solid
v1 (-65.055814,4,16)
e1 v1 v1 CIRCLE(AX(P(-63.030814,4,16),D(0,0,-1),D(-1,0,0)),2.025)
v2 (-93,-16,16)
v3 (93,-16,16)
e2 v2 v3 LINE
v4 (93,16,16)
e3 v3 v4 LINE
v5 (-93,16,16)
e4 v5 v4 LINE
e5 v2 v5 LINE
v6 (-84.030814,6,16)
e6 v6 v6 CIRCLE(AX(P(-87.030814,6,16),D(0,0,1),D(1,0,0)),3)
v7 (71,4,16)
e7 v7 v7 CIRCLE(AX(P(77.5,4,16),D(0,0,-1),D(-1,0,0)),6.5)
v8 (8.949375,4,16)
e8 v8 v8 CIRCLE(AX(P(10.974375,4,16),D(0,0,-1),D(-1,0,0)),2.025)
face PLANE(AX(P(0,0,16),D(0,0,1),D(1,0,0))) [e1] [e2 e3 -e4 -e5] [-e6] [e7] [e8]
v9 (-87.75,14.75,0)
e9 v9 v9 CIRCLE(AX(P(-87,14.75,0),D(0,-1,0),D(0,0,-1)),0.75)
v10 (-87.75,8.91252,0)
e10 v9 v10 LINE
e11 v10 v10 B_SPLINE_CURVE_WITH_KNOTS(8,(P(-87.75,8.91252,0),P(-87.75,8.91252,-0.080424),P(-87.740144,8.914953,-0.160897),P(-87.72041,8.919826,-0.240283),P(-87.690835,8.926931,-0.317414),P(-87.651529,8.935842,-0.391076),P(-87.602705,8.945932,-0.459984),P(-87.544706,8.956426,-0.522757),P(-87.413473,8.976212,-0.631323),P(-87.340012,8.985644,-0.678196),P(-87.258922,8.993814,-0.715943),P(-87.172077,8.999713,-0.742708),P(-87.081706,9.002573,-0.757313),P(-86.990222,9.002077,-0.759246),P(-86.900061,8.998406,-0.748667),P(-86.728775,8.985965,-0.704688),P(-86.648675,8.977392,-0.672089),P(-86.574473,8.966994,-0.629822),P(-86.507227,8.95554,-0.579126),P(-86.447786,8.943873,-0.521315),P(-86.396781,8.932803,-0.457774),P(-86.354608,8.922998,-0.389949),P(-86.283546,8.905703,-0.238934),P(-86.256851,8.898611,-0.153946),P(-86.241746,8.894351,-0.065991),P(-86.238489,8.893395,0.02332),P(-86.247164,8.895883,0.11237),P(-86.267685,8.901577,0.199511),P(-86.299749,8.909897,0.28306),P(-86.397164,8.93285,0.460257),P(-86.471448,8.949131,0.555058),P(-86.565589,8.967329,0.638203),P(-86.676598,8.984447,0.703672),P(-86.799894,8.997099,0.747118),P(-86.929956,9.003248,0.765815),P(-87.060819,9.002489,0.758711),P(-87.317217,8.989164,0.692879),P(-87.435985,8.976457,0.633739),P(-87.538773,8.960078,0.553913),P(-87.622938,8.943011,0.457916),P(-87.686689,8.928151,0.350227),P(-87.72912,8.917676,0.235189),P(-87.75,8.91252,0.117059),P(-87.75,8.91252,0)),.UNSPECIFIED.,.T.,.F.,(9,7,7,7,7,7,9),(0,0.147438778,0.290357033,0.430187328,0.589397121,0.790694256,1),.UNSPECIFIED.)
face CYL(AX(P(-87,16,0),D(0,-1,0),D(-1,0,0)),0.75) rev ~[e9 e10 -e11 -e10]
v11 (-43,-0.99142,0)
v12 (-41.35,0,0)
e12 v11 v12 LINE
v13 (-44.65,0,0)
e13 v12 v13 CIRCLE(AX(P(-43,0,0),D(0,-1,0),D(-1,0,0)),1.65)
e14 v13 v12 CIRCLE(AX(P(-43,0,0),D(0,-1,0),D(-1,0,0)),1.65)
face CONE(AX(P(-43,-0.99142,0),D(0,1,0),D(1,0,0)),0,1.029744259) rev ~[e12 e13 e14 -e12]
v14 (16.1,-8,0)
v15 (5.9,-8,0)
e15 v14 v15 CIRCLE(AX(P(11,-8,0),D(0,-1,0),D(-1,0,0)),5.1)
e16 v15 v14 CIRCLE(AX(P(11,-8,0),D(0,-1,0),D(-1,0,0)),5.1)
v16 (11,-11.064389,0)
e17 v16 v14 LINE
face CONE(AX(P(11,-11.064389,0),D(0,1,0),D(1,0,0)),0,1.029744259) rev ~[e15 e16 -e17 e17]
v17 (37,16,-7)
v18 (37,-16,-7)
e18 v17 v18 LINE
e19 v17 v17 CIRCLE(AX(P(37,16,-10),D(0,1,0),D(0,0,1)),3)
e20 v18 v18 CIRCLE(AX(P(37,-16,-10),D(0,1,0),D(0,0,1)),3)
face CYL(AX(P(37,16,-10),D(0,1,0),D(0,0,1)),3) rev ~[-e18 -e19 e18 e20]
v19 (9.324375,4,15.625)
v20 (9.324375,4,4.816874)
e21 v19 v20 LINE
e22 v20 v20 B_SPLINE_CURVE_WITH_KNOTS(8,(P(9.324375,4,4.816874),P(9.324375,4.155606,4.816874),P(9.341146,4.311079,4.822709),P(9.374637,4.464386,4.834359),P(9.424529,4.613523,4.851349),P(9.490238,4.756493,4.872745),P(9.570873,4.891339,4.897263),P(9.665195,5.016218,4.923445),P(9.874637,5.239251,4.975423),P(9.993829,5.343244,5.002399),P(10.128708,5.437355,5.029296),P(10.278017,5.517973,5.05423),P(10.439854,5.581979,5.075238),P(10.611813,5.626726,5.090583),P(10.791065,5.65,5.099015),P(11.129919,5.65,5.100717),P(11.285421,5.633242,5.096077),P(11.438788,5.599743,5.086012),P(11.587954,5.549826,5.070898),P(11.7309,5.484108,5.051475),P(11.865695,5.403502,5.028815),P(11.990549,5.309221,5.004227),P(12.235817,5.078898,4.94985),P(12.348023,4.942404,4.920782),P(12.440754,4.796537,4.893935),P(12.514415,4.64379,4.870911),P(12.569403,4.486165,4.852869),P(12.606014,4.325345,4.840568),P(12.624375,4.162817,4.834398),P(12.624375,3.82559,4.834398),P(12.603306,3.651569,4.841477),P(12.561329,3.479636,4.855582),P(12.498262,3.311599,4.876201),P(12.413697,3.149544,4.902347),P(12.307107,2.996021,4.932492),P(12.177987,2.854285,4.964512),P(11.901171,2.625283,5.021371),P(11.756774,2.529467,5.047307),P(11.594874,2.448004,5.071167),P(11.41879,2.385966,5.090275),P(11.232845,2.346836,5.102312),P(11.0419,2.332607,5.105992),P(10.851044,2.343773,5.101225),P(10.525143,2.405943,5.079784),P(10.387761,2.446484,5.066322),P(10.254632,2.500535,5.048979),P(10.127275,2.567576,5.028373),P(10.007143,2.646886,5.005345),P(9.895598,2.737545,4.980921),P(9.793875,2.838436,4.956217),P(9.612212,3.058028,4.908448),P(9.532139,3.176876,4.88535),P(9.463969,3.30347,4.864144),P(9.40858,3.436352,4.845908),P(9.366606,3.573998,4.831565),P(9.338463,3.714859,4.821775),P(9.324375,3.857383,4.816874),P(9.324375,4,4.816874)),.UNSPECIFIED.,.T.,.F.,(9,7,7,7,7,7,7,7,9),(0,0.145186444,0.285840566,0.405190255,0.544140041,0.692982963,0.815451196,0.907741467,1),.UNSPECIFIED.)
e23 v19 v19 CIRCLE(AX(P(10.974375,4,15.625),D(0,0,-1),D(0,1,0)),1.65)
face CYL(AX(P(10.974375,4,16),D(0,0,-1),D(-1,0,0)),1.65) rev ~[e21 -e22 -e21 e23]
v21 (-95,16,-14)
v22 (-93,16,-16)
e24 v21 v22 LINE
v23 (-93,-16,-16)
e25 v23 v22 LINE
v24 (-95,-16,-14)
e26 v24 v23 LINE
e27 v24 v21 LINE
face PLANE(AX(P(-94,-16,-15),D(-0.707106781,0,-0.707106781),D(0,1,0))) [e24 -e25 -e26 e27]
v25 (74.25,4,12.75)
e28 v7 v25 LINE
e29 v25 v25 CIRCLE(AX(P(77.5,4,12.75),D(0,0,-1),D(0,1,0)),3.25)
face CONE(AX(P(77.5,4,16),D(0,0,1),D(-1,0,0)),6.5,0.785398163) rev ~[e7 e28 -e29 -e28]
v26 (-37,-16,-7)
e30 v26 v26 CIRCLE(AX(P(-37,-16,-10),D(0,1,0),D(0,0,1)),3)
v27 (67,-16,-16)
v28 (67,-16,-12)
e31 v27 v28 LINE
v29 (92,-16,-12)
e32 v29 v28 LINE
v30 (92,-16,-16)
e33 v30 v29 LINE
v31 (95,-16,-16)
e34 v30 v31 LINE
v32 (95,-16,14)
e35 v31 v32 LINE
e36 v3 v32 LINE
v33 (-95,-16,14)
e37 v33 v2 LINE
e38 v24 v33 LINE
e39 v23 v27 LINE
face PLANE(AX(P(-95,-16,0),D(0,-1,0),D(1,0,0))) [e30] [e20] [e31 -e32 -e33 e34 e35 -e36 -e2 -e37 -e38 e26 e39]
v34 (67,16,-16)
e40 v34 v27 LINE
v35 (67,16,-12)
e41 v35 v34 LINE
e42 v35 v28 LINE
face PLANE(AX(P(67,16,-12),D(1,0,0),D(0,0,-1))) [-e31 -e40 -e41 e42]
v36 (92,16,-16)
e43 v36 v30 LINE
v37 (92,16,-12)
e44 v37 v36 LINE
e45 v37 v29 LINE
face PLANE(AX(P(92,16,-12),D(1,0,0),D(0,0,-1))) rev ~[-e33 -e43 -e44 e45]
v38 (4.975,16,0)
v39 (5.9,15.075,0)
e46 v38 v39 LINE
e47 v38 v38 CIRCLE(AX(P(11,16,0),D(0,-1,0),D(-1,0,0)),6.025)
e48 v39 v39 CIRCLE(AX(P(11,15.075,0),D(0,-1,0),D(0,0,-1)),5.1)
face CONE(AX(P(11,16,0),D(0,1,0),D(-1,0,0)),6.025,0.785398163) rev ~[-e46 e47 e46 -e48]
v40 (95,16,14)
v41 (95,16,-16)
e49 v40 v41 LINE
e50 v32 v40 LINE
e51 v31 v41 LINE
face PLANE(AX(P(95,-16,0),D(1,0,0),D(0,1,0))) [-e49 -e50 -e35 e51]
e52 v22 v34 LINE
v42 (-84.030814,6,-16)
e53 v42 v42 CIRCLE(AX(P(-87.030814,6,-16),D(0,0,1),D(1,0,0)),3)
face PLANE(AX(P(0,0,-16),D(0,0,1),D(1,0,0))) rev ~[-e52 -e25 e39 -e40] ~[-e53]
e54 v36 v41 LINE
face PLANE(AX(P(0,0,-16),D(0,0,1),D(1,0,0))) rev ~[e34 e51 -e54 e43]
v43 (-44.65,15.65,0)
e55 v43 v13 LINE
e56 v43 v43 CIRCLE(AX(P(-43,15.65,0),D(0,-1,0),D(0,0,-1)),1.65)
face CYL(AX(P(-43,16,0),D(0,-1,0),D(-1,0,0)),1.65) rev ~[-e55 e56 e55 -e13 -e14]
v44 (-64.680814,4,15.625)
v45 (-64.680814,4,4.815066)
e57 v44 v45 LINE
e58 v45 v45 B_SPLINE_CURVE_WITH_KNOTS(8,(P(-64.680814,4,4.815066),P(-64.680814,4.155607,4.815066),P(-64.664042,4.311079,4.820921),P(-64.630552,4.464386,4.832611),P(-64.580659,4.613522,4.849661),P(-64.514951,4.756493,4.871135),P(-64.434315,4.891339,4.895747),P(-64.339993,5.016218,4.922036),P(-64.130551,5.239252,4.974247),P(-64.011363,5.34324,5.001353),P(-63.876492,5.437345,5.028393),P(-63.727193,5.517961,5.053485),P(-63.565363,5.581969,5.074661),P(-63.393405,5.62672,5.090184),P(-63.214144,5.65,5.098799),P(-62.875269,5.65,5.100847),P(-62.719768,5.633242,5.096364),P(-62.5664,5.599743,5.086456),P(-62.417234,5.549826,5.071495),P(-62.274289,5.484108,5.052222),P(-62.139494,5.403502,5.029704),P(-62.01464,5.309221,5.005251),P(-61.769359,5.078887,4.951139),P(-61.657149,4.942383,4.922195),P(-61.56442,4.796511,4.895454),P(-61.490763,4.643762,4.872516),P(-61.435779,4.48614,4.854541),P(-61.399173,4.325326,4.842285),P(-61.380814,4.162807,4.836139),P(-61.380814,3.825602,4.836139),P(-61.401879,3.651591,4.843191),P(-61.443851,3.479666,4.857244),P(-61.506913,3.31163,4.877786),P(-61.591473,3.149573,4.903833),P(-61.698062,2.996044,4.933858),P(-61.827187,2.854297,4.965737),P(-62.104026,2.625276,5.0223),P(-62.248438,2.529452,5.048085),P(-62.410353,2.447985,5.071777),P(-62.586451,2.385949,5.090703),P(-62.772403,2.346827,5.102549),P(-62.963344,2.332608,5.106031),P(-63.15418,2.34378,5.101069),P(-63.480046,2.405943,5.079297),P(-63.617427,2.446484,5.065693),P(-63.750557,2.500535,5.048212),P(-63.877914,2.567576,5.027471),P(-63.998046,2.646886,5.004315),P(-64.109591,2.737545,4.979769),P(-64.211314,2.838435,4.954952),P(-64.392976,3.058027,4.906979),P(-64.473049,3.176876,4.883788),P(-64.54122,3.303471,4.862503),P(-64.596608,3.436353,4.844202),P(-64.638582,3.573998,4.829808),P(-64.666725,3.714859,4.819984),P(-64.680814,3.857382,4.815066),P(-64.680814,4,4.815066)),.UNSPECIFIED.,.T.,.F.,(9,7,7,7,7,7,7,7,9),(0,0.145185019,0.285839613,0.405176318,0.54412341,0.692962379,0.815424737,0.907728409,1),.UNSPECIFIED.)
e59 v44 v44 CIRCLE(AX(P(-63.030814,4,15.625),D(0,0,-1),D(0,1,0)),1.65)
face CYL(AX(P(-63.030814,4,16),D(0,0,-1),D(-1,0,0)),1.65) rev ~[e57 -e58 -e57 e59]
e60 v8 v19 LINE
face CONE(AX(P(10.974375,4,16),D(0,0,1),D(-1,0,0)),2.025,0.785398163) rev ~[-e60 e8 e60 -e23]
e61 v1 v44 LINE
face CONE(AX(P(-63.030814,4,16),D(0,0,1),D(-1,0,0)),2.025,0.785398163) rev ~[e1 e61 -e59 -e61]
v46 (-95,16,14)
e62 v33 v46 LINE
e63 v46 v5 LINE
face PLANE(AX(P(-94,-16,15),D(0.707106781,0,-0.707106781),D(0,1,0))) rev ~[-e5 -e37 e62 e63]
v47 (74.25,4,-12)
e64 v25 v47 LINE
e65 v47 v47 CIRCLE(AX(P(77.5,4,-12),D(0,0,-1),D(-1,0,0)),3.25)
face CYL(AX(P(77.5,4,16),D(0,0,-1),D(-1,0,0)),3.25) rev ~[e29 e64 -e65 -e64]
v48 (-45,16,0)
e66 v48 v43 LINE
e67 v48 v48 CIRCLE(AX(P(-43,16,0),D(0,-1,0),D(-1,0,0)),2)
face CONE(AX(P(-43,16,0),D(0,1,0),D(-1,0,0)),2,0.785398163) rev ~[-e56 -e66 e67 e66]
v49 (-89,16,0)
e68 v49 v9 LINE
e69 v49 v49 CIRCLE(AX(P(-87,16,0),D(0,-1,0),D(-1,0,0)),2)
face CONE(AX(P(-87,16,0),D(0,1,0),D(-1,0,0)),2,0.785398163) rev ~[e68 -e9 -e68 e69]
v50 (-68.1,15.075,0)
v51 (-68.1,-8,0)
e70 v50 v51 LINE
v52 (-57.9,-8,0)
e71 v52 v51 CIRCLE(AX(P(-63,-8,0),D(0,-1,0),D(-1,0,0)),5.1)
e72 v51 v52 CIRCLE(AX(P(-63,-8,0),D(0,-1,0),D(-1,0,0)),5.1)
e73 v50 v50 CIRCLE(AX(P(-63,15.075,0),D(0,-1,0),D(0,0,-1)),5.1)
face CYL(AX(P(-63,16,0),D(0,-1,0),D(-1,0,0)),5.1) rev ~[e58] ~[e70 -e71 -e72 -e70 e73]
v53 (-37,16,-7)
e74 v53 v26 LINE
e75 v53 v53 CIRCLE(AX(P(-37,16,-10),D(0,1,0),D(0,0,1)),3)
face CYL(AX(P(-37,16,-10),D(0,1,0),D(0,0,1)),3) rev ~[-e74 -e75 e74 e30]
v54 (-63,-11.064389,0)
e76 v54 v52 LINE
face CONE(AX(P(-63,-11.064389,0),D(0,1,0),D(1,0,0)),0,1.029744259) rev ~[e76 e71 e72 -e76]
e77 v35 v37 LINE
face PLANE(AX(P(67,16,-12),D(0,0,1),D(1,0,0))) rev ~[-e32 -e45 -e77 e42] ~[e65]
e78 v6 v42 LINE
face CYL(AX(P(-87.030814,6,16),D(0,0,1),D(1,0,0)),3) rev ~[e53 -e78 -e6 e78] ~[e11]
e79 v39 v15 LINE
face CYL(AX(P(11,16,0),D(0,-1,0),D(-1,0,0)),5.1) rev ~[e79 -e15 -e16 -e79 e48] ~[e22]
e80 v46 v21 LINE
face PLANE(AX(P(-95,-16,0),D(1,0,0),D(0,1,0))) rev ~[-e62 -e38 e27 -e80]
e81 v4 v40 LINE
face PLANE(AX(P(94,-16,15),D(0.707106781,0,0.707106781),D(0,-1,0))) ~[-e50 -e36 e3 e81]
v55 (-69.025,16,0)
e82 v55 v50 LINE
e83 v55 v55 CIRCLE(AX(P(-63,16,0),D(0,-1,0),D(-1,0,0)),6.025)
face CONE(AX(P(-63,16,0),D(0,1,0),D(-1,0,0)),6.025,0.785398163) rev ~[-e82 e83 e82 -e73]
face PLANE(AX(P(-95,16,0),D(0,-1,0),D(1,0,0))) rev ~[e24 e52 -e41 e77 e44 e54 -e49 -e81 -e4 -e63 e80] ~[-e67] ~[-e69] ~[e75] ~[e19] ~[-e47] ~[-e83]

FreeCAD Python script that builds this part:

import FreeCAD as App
import Part
import Sketcher
from FreeCAD import Vector
Q = App.Units.Quantity


def edges_at(feature, points):
    """Names of the edges that pass closest to the given points."""
    edges = feature.Shape.Edges
    near = lambda p: min(range(len(edges)), key=lambda i: edges[i].distToShape(Part.Vertex(*p))[0])
    return sorted({f"Edge{near(p) + 1}" for p in points})

doc = App.newDocument("Part")
body = doc.addObject("PartDesign::Body", "Body")

# Sketch on XY plane
sketch1 = doc.addObject("Sketcher::SketchObject", "Sketch")
body.addObject(sketch1)
sketch1.AttachmentSupport = (doc.XY_Plane, [""])
sketch1.MapMode = "FlatFace"
sketch1.addGeometry(Part.LineSegment(Vector(-95, 16, 0), Vector(-95, -16, 0)), False)
sketch1.addGeometry(Part.LineSegment(Vector(-95, -16, 0), Vector(95, -16, 0)), False)
sketch1.addGeometry(Part.LineSegment(Vector(95, -16, 0), Vector(95, 16, 0)), False)
sketch1.addGeometry(Part.LineSegment(Vector(95, 16, 0), Vector(-95, 16, 0)), False)
sketch1.addConstraint(Sketcher.Constraint("Coincident", 0, 2, 1, 1))
sketch1.addConstraint(Sketcher.Constraint("Coincident", 1, 2, 2, 1))
sketch1.addConstraint(Sketcher.Constraint("Coincident", 2, 2, 3, 1))
sketch1.addConstraint(Sketcher.Constraint("Coincident", 3, 2, 0, 1))
sketch1.addConstraint(Sketcher.Constraint("Vertical", 0))
sketch1.addConstraint(Sketcher.Constraint("Horizontal", 1))
sketch1.addConstraint(Sketcher.Constraint("Vertical", 2))
sketch1.addConstraint(Sketcher.Constraint("Horizontal", 3))
sketch1.addConstraint(Sketcher.Constraint("Symmetric", 0, 2, 2, 2, -1, 1))
sketch1.addConstraint(Sketcher.Constraint("DistanceX", 1, 1, 1, 2, Q("190 mm")))
sketch1.addConstraint(Sketcher.Constraint("DistanceY", 0, 2, 0, 1, Q("32 mm")))
pad1 = doc.addObject("PartDesign::Pad", "Pad")
body.addObject(pad1)
pad1.Profile = sketch1
pad1.Length = 32
pad1.Midplane = True
doc.recompute()

chamfer = doc.addObject("PartDesign::Chamfer", "Chamfer")
body.addObject(chamfer)
chamfer.Base = (pad1, edges_at(pad1, [(-95, 0, 16), (95, 0, 16), (-95, 0, -16)]))
chamfer.Size = 2

# Sketch on XZ plane
sketch2 = doc.addObject("Sketcher::SketchObject", "Sketch001")
body.addObject(sketch2)
sketch2.AttachmentSupport = (doc.XZ_Plane, [""])
sketch2.MapMode = "FlatFace"
sketch2.AttachmentOffset = App.Placement(Vector(0, 0, -16), App.Rotation())
sketch2.addGeometry(Part.LineSegment(Vector(67, -16, 0), Vector(67, -12, 0)), False)
sketch2.addGeometry(Part.LineSegment(Vector(67, -12, 0), Vector(92, -12, 0)), False)
sketch2.addGeometry(Part.LineSegment(Vector(92, -12, 0), Vector(92, -16, 0)), False)
sketch2.addGeometry(Part.LineSegment(Vector(92, -16, 0), Vector(67, -16, 0)), False)
sketch2.addConstraint(Sketcher.Constraint("Coincident", 0, 2, 1, 1))
sketch2.addConstraint(Sketcher.Constraint("Coincident", 1, 2, 2, 1))
sketch2.addConstraint(Sketcher.Constraint("Coincident", 2, 2, 3, 1))
sketch2.addConstraint(Sketcher.Constraint("Coincident", 3, 2, 0, 1))
sketch2.addConstraint(Sketcher.Constraint("Vertical", 0))
sketch2.addConstraint(Sketcher.Constraint("Horizontal", 1))
sketch2.addConstraint(Sketcher.Constraint("Vertical", 2))
sketch2.addConstraint(Sketcher.Constraint("Horizontal", 3))
sketch2.addConstraint(Sketcher.Constraint("DistanceX", 1, 1, 1, 2, Q("25 mm")))
sketch2.addConstraint(Sketcher.Constraint("DistanceY", 0, 1, 0, 2, Q("4 mm")))
sketch2.addConstraint(Sketcher.Constraint("DistanceX", -1, 1, 0, 2, Q("67 mm")))
sketch2.addConstraint(Sketcher.Constraint("DistanceY", 0, 2, -1, 1, Q("12 mm")))
pocket1 = doc.addObject("PartDesign::Pocket", "Pocket")
body.addObject(pocket1)
pocket1.Profile = sketch2
pocket1.Type = "ThroughAll"
pocket1.Reversed = True

# Sketch on XZ plane
sketch3 = doc.addObject("Sketcher::SketchObject", "Sketch002")
body.addObject(sketch3)
sketch3.AttachmentSupport = (doc.XZ_Plane, [""])
sketch3.MapMode = "FlatFace"
sketch3.AttachmentOffset = App.Placement(Vector(0, 0, -16), App.Rotation())
sketch3.addGeometry(Part.Circle(Vector(-63, 0, 0), Vector(0, 0, 1), 5), False)
sketch3.addGeometry(Part.Circle(Vector(11, 0, 0), Vector(0, 0, 1), 5), False)
sketch3.addConstraint(Sketcher.Constraint("Equal", 0, 1))
sketch3.addConstraint(Sketcher.Constraint("PointOnObject", 0, 3, -1))
sketch3.addConstraint(Sketcher.Constraint("PointOnObject", 1, 3, -1))
sketch3.addConstraint(Sketcher.Constraint("Diameter", 0, Q("10.2 mm")))
sketch3.addConstraint(Sketcher.Constraint("DistanceX", 0, 3, -1, 1, Q("63 mm")))
sketch3.addConstraint(Sketcher.Constraint("DistanceX", -1, 1, 1, 3, Q("11 mm")))
doc.recompute()
hole = doc.addObject("PartDesign::Hole", "Hole")
body.addObject(hole)
hole.Profile = sketch3
hole.ThreadType = "None"
hole.Diameter = 10.2
hole.DepthType = "Dimension"
hole.Depth = 24
hole.DrillPoint = "Angled"
hole.DrillPointAngle = 118
hole.HoleCutType = "Countersink"
hole.HoleCutDiameter = 12.05
hole.HoleCutCountersinkAngle = 90
hole.Reversed = True

# Sketch on XY plane
sketch4 = doc.addObject("Sketcher::SketchObject", "Sketch003")
body.addObject(sketch4)
sketch4.AttachmentSupport = (doc.XY_Plane, [""])
sketch4.MapMode = "FlatFace"
sketch4.AttachmentOffset = App.Placement(Vector(0, 0, 16), App.Rotation())
sketch4.addGeometry(Part.Circle(Vector(-63, 4, 0), Vector(0, 0, 1), 1.6), False)
sketch4.addGeometry(Part.Circle(Vector(11, 4, 0), Vector(0, 0, 1), 1.6), False)
sketch4.addConstraint(Sketcher.Constraint("Equal", 0, 1))
sketch4.addConstraint(Sketcher.Constraint("Horizontal", 0, 3, 1, 3))
sketch4.addConstraint(Sketcher.Constraint("Diameter", 0, Q("3.3 mm")))
sketch4.addConstraint(Sketcher.Constraint("DistanceY", -1, 1, 0, 3, Q("4 mm")))
sketch4.addConstraint(Sketcher.Constraint("DistanceX", 0, 3, 1, 3, Q("74.005188 mm")))
sketch4.addConstraint(Sketcher.Constraint("DistanceX", 0, 3, -1, 1, Q("63.030814 mm")))
doc.recompute()
hole2 = doc.addObject("PartDesign::Hole", "Hole001")
body.addObject(hole2)
hole2.Profile = sketch4
hole2.ThreadType = "None"
hole2.Diameter = 3.3
hole2.DepthType = "Dimension"
hole2.Depth = 11.5
hole2.DrillPoint = "Angled"
hole2.DrillPointAngle = 118
hole2.HoleCutType = "Countersink"
hole2.HoleCutDiameter = 4.05
hole2.HoleCutCountersinkAngle = 90

# Sketch on XY plane
sketch5 = doc.addObject("Sketcher::SketchObject", "Sketch004")
body.addObject(sketch5)
sketch5.AttachmentSupport = (doc.XY_Plane, [""])
sketch5.MapMode = "FlatFace"
sketch5.AttachmentOffset = App.Placement(Vector(0, 0, 16), App.Rotation())
sketch5.addGeometry(Part.Circle(Vector(77.5, 4, 0), Vector(0, 0, 1), 3.2), False)
sketch5.addConstraint(Sketcher.Constraint("Diameter", 0, Q("6.5 mm")))
sketch5.addConstraint(Sketcher.Constraint("DistanceY", -1, 1, 0, 3, Q("4 mm")))
sketch5.addConstraint(Sketcher.Constraint("DistanceX", -1, 1, 0, 3, Q("77.5 mm")))
doc.recompute()
hole3 = doc.addObject("PartDesign::Hole", "Hole002")
body.addObject(hole3)
hole3.Profile = sketch5
hole3.ThreadType = "None"
hole3.Diameter = 6.5
hole3.DepthType = "ThroughAll"
hole3.HoleCutType = "Countersink"
hole3.HoleCutDiameter = 13
hole3.HoleCutCountersinkAngle = 90

# Sketch on XY plane
sketch6 = doc.addObject("Sketcher::SketchObject", "Sketch005")
body.addObject(sketch6)
sketch6.AttachmentSupport = (doc.XY_Plane, [""])
sketch6.MapMode = "FlatFace"
sketch6.AttachmentOffset = App.Placement(Vector(0, 0, 16), App.Rotation())
sketch6.addGeometry(Part.Circle(Vector(-87, 6, 0), Vector(0, 0, 1), 3), False)
sketch6.addConstraint(Sketcher.Constraint("Diameter", 0, Q("6 mm")))
sketch6.addConstraint(Sketcher.Constraint("DistanceY", -1, 1, 0, 3, Q("6 mm")))
sketch6.addConstraint(Sketcher.Constraint("DistanceX", 0, 3, -1, 1, Q("87.030814 mm")))
pocket2 = doc.addObject("PartDesign::Pocket", "Pocket001")
body.addObject(pocket2)
pocket2.Profile = sketch6
pocket2.Type = "ThroughAll"

# Sketch on XZ plane
sketch7 = doc.addObject("Sketcher::SketchObject", "Sketch006")
body.addObject(sketch7)
sketch7.AttachmentSupport = (doc.XZ_Plane, [""])
sketch7.MapMode = "FlatFace"
sketch7.AttachmentOffset = App.Placement(Vector(0, 0, -16), App.Rotation())
sketch7.addGeometry(Part.Circle(Vector(-87, 0, 0), Vector(0, 0, 1), 0.8), False)
sketch7.addConstraint(Sketcher.Constraint("PointOnObject", 0, 3, -1))
sketch7.addConstraint(Sketcher.Constraint("Diameter", 0, Q("1.5 mm")))
sketch7.addConstraint(Sketcher.Constraint("DistanceX", 0, 3, -1, 1, Q("87 mm")))
doc.recompute()
hole4 = doc.addObject("PartDesign::Hole", "Hole003")
body.addObject(hole4)
hole4.Profile = sketch7
hole4.ThreadType = "None"
hole4.Diameter = 1.5
hole4.DepthType = "Dimension"
hole4.Depth = 10
hole4.DrillPoint = "Angled"
hole4.DrillPointAngle = 118
hole4.HoleCutType = "Countersink"
hole4.HoleCutDiameter = 4
hole4.HoleCutCountersinkAngle = 90
hole4.Reversed = True

# Sketch on XZ plane
sketch8 = doc.addObject("Sketcher::SketchObject", "Sketch007")
body.addObject(sketch8)
sketch8.AttachmentSupport = (doc.XZ_Plane, [""])
sketch8.MapMode = "FlatFace"
sketch8.AttachmentOffset = App.Placement(Vector(0, 0, -16), App.Rotation())
sketch8.addGeometry(Part.Circle(Vector(-43, 0, 0), Vector(0, 0, 1), 1.6), False)
sketch8.addConstraint(Sketcher.Constraint("PointOnObject", 0, 3, -1))
sketch8.addConstraint(Sketcher.Constraint("Diameter", 0, Q("3.3 mm")))
sketch8.addConstraint(Sketcher.Constraint("DistanceX", 0, 3, -1, 1, Q("43 mm")))
doc.recompute()
hole5 = doc.addObject("PartDesign::Hole", "Hole004")
body.addObject(hole5)
hole5.Profile = sketch8
hole5.ThreadType = "None"
hole5.Diameter = 3.3
hole5.DepthType = "Dimension"
hole5.Depth = 16
hole5.DrillPoint = "Angled"
hole5.DrillPointAngle = 118
hole5.HoleCutType = "Countersink"
hole5.HoleCutDiameter = 4
hole5.HoleCutCountersinkAngle = 90
hole5.Reversed = True

# Sketch on XZ plane
sketch9 = doc.addObject("Sketcher::SketchObject", "Sketch008")
body.addObject(sketch9)
sketch9.AttachmentSupport = (doc.XZ_Plane, [""])
sketch9.MapMode = "FlatFace"
sketch9.AttachmentOffset = App.Placement(Vector(0, 0, -16), App.Rotation())
sketch9.addGeometry(Part.Circle(Vector(-37, -10, 0), Vector(0, 0, 1), 3), False)
sketch9.addGeometry(Part.Circle(Vector(37, -10, 0), Vector(0, 0, 1), 3), False)
sketch9.addConstraint(Sketcher.Constraint("Equal", 0, 1))
sketch9.addConstraint(Sketcher.Constraint("Symmetric", 0, 3, 1, 3, -2))
sketch9.addConstraint(Sketcher.Constraint("Diameter", 0, Q("6 mm")))
sketch9.addConstraint(Sketcher.Constraint("DistanceX", 0, 3, -1, 1, Q("37 mm")))
sketch9.addConstraint(Sketcher.Constraint("DistanceY", 0, 3, -1, 1, Q("10 mm")))
pocket3 = doc.addObject("PartDesign::Pocket", "Pocket002")
body.addObject(pocket3)
pocket3.Profile = sketch9
pocket3.Type = "ThroughAll"
pocket3.Reversed = True

doc.recompute()
